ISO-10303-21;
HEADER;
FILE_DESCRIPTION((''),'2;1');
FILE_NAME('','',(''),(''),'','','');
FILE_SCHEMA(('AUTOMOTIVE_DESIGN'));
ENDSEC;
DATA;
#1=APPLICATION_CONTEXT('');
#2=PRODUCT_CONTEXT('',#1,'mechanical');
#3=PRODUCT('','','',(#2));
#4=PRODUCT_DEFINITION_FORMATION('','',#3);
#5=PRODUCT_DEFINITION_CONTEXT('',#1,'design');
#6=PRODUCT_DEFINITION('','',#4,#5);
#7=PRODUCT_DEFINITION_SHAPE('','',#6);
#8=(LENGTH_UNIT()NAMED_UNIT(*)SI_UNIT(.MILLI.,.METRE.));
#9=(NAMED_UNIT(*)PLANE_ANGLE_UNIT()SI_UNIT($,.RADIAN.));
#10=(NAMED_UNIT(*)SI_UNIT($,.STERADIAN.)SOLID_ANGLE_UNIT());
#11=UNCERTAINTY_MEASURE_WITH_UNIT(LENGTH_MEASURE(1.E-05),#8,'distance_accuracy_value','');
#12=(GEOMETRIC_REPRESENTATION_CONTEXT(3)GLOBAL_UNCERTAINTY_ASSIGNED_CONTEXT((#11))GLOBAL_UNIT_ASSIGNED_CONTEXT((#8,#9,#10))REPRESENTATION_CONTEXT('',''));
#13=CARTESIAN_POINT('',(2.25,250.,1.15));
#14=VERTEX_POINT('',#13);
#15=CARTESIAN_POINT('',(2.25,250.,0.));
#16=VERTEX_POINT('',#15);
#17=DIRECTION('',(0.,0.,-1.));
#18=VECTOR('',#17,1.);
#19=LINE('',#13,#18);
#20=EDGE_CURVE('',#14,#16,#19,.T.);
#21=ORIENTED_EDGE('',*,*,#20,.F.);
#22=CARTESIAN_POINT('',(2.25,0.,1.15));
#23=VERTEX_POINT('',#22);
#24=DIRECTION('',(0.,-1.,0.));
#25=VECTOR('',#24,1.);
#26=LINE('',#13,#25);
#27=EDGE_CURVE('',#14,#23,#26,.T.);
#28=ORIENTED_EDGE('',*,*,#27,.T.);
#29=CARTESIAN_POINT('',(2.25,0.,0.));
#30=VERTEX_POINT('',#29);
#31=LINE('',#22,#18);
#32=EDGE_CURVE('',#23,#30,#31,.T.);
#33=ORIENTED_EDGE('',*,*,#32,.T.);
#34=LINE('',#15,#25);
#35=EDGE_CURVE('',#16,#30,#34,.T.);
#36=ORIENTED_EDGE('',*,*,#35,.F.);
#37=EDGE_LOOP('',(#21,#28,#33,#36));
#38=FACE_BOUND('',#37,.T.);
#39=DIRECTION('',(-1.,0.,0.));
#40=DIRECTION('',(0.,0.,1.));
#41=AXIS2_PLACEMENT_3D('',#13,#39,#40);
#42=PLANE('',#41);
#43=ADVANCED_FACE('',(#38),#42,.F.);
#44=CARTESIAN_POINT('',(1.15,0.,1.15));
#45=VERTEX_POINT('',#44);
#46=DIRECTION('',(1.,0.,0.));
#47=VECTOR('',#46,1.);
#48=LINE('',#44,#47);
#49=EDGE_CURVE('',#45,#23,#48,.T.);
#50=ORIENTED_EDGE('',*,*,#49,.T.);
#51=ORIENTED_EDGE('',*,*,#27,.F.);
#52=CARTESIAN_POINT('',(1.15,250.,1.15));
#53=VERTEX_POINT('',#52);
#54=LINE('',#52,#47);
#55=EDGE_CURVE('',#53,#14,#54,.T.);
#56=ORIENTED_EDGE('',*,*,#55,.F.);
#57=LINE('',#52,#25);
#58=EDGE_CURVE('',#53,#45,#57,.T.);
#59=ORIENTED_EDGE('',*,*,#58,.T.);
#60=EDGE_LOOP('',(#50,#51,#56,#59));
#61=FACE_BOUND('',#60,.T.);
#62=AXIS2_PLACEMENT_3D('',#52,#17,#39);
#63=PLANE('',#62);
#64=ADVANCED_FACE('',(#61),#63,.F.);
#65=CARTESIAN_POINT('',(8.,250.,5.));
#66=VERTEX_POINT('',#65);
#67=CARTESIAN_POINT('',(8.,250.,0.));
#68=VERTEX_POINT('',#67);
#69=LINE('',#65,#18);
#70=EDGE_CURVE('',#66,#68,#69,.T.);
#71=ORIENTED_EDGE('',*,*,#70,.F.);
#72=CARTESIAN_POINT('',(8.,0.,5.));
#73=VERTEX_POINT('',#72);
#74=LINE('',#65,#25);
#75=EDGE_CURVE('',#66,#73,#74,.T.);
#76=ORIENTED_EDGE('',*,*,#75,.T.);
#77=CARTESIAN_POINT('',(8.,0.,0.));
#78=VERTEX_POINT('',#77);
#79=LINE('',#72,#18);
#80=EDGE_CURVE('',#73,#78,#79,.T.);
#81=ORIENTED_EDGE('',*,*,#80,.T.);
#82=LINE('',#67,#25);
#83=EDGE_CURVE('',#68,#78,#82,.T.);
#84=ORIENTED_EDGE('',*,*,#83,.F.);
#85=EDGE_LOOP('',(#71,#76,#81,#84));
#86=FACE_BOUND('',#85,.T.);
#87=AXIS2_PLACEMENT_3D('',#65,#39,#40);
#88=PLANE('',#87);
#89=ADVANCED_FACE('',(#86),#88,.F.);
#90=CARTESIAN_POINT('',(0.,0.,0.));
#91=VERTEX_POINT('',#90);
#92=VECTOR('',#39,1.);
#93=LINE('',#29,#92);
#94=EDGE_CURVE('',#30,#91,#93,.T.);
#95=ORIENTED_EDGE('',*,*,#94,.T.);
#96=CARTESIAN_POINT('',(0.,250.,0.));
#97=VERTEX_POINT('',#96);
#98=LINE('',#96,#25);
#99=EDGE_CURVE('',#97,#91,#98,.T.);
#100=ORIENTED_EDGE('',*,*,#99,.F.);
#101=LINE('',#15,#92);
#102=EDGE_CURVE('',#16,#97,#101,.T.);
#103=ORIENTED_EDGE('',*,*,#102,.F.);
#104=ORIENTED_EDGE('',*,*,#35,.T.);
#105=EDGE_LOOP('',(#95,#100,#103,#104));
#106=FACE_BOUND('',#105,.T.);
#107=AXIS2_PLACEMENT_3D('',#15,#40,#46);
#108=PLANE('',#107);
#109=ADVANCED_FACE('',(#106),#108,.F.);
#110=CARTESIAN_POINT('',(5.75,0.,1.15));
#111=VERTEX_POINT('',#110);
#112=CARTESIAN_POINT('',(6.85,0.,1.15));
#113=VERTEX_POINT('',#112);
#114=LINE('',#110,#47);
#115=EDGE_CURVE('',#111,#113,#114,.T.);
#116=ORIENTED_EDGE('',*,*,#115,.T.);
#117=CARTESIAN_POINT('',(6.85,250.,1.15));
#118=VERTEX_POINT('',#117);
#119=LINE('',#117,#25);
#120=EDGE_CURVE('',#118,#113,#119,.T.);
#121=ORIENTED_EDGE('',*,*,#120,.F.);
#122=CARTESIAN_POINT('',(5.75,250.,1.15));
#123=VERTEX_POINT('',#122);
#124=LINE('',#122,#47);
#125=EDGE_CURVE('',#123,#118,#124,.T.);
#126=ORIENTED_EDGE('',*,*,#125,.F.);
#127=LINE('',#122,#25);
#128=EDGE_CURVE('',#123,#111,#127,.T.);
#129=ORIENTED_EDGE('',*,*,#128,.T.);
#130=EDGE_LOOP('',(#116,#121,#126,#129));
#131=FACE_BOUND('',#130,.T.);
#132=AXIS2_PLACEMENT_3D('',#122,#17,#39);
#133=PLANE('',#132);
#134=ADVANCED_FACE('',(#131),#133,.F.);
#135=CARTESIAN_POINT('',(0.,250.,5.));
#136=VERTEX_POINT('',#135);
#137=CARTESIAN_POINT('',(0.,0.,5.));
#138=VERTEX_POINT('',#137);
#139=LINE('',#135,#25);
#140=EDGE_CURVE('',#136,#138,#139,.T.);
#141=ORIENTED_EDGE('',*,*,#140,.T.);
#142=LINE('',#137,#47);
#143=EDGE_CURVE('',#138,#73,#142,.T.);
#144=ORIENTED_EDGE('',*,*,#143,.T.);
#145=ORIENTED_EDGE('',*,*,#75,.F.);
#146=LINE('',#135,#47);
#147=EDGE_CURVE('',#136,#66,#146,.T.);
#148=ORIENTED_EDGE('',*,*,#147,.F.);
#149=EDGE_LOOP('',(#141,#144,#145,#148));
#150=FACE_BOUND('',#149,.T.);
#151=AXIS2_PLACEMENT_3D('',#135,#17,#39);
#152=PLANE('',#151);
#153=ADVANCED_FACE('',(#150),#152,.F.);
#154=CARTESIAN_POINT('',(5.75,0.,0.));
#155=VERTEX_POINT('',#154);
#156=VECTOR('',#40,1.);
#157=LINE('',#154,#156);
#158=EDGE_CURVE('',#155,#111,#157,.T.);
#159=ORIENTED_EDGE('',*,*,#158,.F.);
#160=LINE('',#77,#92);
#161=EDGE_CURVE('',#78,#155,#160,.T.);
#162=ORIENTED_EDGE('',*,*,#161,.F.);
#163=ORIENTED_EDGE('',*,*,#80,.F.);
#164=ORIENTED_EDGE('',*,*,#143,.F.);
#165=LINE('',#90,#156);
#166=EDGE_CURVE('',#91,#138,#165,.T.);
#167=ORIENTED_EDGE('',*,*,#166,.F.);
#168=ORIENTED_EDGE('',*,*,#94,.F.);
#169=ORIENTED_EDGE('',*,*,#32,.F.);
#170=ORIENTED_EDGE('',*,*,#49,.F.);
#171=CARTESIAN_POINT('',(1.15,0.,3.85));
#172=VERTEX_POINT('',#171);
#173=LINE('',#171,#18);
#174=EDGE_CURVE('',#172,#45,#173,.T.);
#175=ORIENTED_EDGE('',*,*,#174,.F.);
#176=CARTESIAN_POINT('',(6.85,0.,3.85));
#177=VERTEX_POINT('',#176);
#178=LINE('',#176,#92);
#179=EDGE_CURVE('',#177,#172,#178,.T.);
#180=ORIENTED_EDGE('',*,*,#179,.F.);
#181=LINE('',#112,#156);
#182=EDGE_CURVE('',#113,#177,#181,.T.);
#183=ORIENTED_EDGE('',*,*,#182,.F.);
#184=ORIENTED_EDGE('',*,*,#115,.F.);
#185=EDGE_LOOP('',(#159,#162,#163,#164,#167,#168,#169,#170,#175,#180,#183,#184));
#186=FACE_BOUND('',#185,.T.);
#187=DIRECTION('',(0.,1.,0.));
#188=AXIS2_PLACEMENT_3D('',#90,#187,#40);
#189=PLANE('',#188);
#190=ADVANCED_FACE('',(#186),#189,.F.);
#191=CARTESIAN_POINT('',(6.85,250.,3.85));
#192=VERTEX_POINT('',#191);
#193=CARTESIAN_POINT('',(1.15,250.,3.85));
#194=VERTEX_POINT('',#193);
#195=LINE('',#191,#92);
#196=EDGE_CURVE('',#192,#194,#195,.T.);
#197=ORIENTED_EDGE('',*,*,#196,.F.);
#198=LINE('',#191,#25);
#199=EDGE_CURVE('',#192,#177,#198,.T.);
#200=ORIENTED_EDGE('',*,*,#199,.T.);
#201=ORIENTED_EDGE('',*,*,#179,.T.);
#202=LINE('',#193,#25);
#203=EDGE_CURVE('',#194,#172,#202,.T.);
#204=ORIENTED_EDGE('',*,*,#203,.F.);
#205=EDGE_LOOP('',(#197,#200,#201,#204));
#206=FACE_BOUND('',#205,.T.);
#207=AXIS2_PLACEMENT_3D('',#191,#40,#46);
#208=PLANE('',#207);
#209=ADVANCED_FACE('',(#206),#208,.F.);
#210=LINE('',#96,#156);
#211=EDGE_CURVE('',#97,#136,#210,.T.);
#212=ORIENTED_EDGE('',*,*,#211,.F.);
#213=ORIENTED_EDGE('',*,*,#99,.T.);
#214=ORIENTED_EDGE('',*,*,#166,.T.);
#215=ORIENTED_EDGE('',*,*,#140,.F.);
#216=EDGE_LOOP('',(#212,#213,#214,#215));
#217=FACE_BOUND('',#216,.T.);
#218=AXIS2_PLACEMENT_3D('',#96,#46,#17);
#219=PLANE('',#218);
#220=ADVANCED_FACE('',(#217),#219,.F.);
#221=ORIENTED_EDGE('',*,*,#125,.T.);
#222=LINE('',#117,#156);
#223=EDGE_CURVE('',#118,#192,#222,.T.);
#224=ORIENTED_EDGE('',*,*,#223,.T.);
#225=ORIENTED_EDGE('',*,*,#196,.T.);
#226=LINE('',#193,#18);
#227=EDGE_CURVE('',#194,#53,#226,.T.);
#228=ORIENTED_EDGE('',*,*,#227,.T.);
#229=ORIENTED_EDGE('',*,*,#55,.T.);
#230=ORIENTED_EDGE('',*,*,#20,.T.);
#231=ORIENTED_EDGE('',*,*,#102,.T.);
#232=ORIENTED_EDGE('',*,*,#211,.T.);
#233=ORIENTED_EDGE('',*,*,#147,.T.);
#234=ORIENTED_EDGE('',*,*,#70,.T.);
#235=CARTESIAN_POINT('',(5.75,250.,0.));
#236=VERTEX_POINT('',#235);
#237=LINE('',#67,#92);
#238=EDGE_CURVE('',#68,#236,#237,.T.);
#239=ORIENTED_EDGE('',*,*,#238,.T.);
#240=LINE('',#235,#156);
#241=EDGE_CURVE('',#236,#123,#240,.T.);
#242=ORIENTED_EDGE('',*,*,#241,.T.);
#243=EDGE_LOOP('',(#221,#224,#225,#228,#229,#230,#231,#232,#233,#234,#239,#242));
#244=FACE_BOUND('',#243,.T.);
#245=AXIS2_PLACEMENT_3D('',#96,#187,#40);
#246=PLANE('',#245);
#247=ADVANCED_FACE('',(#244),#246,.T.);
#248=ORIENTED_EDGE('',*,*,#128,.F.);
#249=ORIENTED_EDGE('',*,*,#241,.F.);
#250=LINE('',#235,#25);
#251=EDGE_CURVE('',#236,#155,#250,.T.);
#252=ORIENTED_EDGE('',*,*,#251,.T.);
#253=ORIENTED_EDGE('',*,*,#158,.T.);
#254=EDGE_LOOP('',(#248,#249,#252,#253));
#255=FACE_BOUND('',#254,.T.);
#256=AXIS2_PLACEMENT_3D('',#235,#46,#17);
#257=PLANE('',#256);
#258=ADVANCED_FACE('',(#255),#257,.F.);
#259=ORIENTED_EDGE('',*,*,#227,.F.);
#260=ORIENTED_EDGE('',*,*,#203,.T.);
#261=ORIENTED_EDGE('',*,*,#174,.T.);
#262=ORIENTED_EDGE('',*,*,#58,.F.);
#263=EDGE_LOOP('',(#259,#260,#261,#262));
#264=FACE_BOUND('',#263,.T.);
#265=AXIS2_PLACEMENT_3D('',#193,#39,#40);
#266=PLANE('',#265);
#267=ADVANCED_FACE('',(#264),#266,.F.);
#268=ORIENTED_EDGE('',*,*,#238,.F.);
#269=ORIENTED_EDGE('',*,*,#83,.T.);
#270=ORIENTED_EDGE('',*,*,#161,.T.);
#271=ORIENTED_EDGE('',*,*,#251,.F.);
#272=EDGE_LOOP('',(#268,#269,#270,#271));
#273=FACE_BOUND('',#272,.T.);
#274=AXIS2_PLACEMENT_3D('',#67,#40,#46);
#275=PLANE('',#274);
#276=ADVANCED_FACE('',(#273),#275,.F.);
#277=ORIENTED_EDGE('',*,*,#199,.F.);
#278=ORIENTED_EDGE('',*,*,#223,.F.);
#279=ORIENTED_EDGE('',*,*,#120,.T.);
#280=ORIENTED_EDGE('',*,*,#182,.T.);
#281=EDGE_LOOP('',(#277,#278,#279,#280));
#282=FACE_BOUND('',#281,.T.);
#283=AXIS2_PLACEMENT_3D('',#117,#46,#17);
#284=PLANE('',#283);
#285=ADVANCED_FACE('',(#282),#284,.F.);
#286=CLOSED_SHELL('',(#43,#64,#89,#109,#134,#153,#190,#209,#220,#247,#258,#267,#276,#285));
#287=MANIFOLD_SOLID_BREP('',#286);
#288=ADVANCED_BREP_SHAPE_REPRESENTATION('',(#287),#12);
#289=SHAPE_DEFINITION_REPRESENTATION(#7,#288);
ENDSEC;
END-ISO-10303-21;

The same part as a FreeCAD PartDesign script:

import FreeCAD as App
import Part
import Sketcher

doc = App.newDocument("Part")
body = doc.addObject("PartDesign::Body", "Body")

# Sketch on XZ plane
sketch1 = body.newObject("Sketcher::SketchObject", "Sketch")
sketch1.AttachmentSupport = (doc.getObject("XZ_Plane"), [""])
sketch1.MapMode = "FlatFace"
sketch1.addGeometry([
    Part.LineSegment(App.Vector(0, 5, 0), App.Vector(8, 5, 0)),  # 0
    Part.LineSegment(App.Vector(8, 5, 0), App.Vector(8, 0, 0)),  # 1
    Part.LineSegment(App.Vector(8, 0, 0), App.Vector(5.8, 0, 0)),  # 2
    Part.LineSegment(App.Vector(5.8, 0, 0), App.Vector(5.8, 1.1, 0)),  # 3
    Part.LineSegment(App.Vector(5.8, 1.1, 0), App.Vector(6.8, 1.1, 0)),  # 4
    Part.LineSegment(App.Vector(6.8, 1.1, 0), App.Vector(6.8, 3.9, 0)),  # 5
    Part.LineSegment(App.Vector(6.8, 3.9, 0), App.Vector(1.1, 3.9, 0)),  # 6
    Part.LineSegment(App.Vector(1.1, 3.9, 0), App.Vector(1.1, 1.1, 0)),  # 7
    Part.LineSegment(App.Vector(1.1, 1.1, 0), App.Vector(2.2, 1.1, 0)),  # 8
    Part.LineSegment(App.Vector(2.2, 1.1, 0), App.Vector(2.2, 0, 0)),  # 9
    Part.LineSegment(App.Vector(2.2, 0, 0), App.Vector(0, 0, 0)),  # 10
    Part.LineSegment(App.Vector(0, 0, 0), App.Vector(0, 5, 0)),  # 11
], False)
sketch1.addConstraint([
    Sketcher.Constraint("Coincident", 0, 2, 1, 1),
    Sketcher.Constraint("Coincident", 1, 2, 2, 1),
    Sketcher.Constraint("Coincident", 2, 2, 3, 1),
    Sketcher.Constraint("Coincident", 3, 2, 4, 1),
    Sketcher.Constraint("Coincident", 4, 2, 5, 1),
    Sketcher.Constraint("Coincident", 5, 2, 6, 1),
    Sketcher.Constraint("Coincident", 6, 2, 7, 1),
    Sketcher.Constraint("Coincident", 7, 2, 8, 1),
    Sketcher.Constraint("Coincident", 8, 2, 9, 1),
    Sketcher.Constraint("Coincident", 9, 2, 10, 1),
    Sketcher.Constraint("Coincident", 10, 2, 11, 1),
    Sketcher.Constraint("Coincident", 11, 2, 0, 1),
    Sketcher.Constraint("Horizontal", 0),
    Sketcher.Constraint("Vertical", 1),
    Sketcher.Constraint("Horizontal", 2),
    Sketcher.Constraint("Vertical", 3),
    Sketcher.Constraint("Horizontal", 4),
    Sketcher.Constraint("Vertical", 5),
    Sketcher.Constraint("Horizontal", 6),
    Sketcher.Constraint("Vertical", 7),
    Sketcher.Constraint("Horizontal", 8),
    Sketcher.Constraint("Vertical", 9),
    Sketcher.Constraint("Horizontal", 10),
    Sketcher.Constraint("Vertical", 11),
    Sketcher.Constraint("Coincident", 10, 2, -1, 1),
    Sketcher.Constraint("PointOnObject", 1, 2, -1),
    Sketcher.Constraint("Horizontal", 4, 2, 7, 2),
    Sketcher.Constraint("Equal", 4, 8),
    Sketcher.Constraint("Equal", 2, 10),
    Sketcher.Constraint("DistanceX", 0, 1, 0, 2, 8.0),
    Sketcher.Constraint("DistanceY", 1, 2, 1, 1, 5.0),
    Sketcher.Constraint("DistanceX", 4, 1, 4, 2, 1.1),
    Sketcher.Constraint("DistanceX", 6, 2, 6, 1, 5.7),
    Sketcher.Constraint("DistanceY", 5, 1, 5, 2, 2.7),
    Sketcher.Constraint("DistanceY", 3, 1, 3, 2, 1.15),
])
pad1 = body.newObject("PartDesign::Pad", "Pad")
pad1.Profile = sketch1
pad1.Length = 250
pad1.Reversed = True

doc.recompute()
